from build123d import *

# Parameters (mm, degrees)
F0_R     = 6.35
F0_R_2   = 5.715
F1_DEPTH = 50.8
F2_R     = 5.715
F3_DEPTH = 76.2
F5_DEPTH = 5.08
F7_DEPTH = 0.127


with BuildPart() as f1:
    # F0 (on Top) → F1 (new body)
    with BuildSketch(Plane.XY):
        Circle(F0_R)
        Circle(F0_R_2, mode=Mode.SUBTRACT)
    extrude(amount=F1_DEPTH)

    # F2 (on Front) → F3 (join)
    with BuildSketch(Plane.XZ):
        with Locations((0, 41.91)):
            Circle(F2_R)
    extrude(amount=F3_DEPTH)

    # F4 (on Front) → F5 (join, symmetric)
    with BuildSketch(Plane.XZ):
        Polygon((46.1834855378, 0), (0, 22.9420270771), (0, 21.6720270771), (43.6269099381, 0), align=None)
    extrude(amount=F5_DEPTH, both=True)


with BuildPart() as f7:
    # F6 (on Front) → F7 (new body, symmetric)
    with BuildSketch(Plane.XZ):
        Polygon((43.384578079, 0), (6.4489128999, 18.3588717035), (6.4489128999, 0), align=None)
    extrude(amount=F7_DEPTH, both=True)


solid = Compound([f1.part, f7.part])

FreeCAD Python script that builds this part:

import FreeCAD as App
import Part
import Sketcher
Q = App.Units.Quantity

doc = App.newDocument("Part")
params = doc.addObject("Spreadsheet::Sheet", "Params")
for row, (alias, value) in enumerate([
    ("sketch1_diameter", "0.5 in"),
    ("sketch1_diameter2", "0.45 in"),
    ("pad1_length", "2 in"),
    ("sketch2_diameter", "0.45 in"),
    ("pad2_length", "3 in"),
    ("sketch3_height", "0.05 in"),
    ("pad3_length", "0.4 in"),
    ("pad4_length", "0.01 in"),
], start=1):
    params.set(f"A{row}", alias)
    params.set(f"B{row}", "=" + value)
    params.setAlias(f"B{row}", alias)

body = doc.addObject("PartDesign::Body", "Body")

# Sketch on XY plane
sketch1 = body.newObject("Sketcher::SketchObject", "Sketch")
sketch1.AttachmentSupport = (doc.getObject("XY_Plane"), [""])
sketch1.MapMode = "FlatFace"
sketch1.addGeometry([
    Part.Circle(App.Vector(0, 0, 0), App.Vector(0, 0, 1), 6),
    Part.Circle(App.Vector(0, 0, 0), App.Vector(0, 0, 1), 6),
], False)
sketch1.addConstraint([
    Sketcher.Constraint("Coincident", 0, 3, -1, 1),
    Sketcher.Constraint("Coincident", 1, 3, -1, 1),
    Sketcher.Constraint("Diameter", 0, Q("0.5 in")),
    Sketcher.Constraint("Diameter", 1, Q("0.45 in")),
])
sketch1.setExpression("Constraints[2]", "Params.sketch1_diameter")
sketch1.setExpression("Constraints[3]", "Params.sketch1_diameter2")
pad1 = body.newObject("PartDesign::Pad", "Pad")
pad1.Profile = sketch1
pad1.setExpression("Length", "Params.pad1_length")

# Sketch on XZ plane
sketch2 = body.newObject("Sketcher::SketchObject", "Sketch001")
sketch2.AttachmentSupport = (doc.getObject("XZ_Plane"), [""])
sketch2.MapMode = "FlatFace"
sketch2.addGeometry(Part.Circle(App.Vector(0, 42, 0), App.Vector(0, 0, 1), 6), False)
sketch2.addConstraint([
    Sketcher.Constraint("PointOnObject", 0, 3, -2),
    Sketcher.Constraint("Diameter", 0, Q("0.45 in")),
    Sketcher.Constraint("DistanceY", -1, 1, 0, 3, Q("1.65 in")),
])
sketch2.setExpression("Constraints[1]", "Params.sketch2_diameter")
pad2 = body.newObject("PartDesign::Pad", "Pad001")
pad2.Profile = sketch2
pad2.setExpression("Length", "Params.pad2_length")

# Sketch on XZ plane
sketch3 = body.newObject("Sketcher::SketchObject", "Sketch002")
sketch3.AttachmentSupport = (doc.getObject("XZ_Plane"), [""])
sketch3.MapMode = "FlatFace"
sketch3.addGeometry([
    Part.LineSegment(App.Vector(46.2, 0, 0), App.Vector(0, 22.9, 0)),
    Part.LineSegment(App.Vector(0, 22.9, 0), App.Vector(0, 21.7, 0)),
    Part.LineSegment(App.Vector(0, 21.7, 0), App.Vector(43.6, 0, 0)),
    Part.LineSegment(App.Vector(43.6, 0, 0), App.Vector(46.2, 0, 0)),
], False)
sketch3.addConstraint([
    Sketcher.Constraint("Coincident", 0, 2, 1, 1),
    Sketcher.Constraint("Coincident", 1, 2, 2, 1),
    Sketcher.Constraint("Coincident", 2, 2, 3, 1),
    Sketcher.Constraint("Coincident", 3, 2, 0, 1),
    Sketcher.Constraint("Vertical", 1),
    Sketcher.Constraint("Horizontal", 3),
    Sketcher.Constraint("PointOnObject", 0, 2, -2),
    Sketcher.Constraint("PointOnObject", 2, 2, -1),
    Sketcher.Constraint("Parallel", 0, 2),
    Sketcher.Constraint("DistanceY", 1, 2, 1, 1, Q("0.05 in")),
    Sketcher.Constraint("DistanceX", 3, 1, 3, 2, Q("2.556576 mm")),
    Sketcher.Constraint("DistanceX", -1, 1, 2, 2, Q("43.62691 mm")),
])
sketch3.setExpression("Constraints[9]", "Params.sketch3_height")
pad3 = body.newObject("PartDesign::Pad", "Pad002")
pad3.Profile = sketch3
pad3.setExpression("Length", "Params.pad3_length")
pad3.Midplane = True
body2 = doc.addObject("PartDesign::Body", "Body001")

# Sketch on XZ plane
sketch4 = body2.newObject("Sketcher::SketchObject", "Sketch003")
sketch4.AttachmentSupport = (doc.getObject("XZ_Plane001"), [""])
sketch4.MapMode = "FlatFace"
sketch4.addGeometry([
    Part.LineSegment(App.Vector(43, 0, 0), App.Vector(6, 18, 0)),
    Part.LineSegment(App.Vector(6, 18, 0), App.Vector(6, 0, 0)),
    Part.LineSegment(App.Vector(6, 0, 0), App.Vector(43, 0, 0)),
], False)
sketch4.addConstraint([
    Sketcher.Constraint("Coincident", 0, 2, 1, 1),
    Sketcher.Constraint("Coincident", 1, 2, 2, 1),
    Sketcher.Constraint("Coincident", 2, 2, 0, 1),
    Sketcher.Constraint("Vertical", 1),
    Sketcher.Constraint("Horizontal", 2),
    Sketcher.Constraint("PointOnObject", 1, 2, -1),
    Sketcher.Constraint("DistanceY", 1, 2, 1, 1, Q("18.358872 mm")),
    Sketcher.Constraint("DistanceX", 2, 1, 2, 2, Q("36.935665 mm")),
    Sketcher.Constraint("DistanceX", -1, 1, 2, 2, Q("43.384578 mm")),
])
pad4 = body2.newObject("PartDesign::Pad", "Pad003")
pad4.Profile = sketch4
pad4.setExpression("Length", "Params.pad4_length")
pad4.Midplane = True

doc.recompute()
